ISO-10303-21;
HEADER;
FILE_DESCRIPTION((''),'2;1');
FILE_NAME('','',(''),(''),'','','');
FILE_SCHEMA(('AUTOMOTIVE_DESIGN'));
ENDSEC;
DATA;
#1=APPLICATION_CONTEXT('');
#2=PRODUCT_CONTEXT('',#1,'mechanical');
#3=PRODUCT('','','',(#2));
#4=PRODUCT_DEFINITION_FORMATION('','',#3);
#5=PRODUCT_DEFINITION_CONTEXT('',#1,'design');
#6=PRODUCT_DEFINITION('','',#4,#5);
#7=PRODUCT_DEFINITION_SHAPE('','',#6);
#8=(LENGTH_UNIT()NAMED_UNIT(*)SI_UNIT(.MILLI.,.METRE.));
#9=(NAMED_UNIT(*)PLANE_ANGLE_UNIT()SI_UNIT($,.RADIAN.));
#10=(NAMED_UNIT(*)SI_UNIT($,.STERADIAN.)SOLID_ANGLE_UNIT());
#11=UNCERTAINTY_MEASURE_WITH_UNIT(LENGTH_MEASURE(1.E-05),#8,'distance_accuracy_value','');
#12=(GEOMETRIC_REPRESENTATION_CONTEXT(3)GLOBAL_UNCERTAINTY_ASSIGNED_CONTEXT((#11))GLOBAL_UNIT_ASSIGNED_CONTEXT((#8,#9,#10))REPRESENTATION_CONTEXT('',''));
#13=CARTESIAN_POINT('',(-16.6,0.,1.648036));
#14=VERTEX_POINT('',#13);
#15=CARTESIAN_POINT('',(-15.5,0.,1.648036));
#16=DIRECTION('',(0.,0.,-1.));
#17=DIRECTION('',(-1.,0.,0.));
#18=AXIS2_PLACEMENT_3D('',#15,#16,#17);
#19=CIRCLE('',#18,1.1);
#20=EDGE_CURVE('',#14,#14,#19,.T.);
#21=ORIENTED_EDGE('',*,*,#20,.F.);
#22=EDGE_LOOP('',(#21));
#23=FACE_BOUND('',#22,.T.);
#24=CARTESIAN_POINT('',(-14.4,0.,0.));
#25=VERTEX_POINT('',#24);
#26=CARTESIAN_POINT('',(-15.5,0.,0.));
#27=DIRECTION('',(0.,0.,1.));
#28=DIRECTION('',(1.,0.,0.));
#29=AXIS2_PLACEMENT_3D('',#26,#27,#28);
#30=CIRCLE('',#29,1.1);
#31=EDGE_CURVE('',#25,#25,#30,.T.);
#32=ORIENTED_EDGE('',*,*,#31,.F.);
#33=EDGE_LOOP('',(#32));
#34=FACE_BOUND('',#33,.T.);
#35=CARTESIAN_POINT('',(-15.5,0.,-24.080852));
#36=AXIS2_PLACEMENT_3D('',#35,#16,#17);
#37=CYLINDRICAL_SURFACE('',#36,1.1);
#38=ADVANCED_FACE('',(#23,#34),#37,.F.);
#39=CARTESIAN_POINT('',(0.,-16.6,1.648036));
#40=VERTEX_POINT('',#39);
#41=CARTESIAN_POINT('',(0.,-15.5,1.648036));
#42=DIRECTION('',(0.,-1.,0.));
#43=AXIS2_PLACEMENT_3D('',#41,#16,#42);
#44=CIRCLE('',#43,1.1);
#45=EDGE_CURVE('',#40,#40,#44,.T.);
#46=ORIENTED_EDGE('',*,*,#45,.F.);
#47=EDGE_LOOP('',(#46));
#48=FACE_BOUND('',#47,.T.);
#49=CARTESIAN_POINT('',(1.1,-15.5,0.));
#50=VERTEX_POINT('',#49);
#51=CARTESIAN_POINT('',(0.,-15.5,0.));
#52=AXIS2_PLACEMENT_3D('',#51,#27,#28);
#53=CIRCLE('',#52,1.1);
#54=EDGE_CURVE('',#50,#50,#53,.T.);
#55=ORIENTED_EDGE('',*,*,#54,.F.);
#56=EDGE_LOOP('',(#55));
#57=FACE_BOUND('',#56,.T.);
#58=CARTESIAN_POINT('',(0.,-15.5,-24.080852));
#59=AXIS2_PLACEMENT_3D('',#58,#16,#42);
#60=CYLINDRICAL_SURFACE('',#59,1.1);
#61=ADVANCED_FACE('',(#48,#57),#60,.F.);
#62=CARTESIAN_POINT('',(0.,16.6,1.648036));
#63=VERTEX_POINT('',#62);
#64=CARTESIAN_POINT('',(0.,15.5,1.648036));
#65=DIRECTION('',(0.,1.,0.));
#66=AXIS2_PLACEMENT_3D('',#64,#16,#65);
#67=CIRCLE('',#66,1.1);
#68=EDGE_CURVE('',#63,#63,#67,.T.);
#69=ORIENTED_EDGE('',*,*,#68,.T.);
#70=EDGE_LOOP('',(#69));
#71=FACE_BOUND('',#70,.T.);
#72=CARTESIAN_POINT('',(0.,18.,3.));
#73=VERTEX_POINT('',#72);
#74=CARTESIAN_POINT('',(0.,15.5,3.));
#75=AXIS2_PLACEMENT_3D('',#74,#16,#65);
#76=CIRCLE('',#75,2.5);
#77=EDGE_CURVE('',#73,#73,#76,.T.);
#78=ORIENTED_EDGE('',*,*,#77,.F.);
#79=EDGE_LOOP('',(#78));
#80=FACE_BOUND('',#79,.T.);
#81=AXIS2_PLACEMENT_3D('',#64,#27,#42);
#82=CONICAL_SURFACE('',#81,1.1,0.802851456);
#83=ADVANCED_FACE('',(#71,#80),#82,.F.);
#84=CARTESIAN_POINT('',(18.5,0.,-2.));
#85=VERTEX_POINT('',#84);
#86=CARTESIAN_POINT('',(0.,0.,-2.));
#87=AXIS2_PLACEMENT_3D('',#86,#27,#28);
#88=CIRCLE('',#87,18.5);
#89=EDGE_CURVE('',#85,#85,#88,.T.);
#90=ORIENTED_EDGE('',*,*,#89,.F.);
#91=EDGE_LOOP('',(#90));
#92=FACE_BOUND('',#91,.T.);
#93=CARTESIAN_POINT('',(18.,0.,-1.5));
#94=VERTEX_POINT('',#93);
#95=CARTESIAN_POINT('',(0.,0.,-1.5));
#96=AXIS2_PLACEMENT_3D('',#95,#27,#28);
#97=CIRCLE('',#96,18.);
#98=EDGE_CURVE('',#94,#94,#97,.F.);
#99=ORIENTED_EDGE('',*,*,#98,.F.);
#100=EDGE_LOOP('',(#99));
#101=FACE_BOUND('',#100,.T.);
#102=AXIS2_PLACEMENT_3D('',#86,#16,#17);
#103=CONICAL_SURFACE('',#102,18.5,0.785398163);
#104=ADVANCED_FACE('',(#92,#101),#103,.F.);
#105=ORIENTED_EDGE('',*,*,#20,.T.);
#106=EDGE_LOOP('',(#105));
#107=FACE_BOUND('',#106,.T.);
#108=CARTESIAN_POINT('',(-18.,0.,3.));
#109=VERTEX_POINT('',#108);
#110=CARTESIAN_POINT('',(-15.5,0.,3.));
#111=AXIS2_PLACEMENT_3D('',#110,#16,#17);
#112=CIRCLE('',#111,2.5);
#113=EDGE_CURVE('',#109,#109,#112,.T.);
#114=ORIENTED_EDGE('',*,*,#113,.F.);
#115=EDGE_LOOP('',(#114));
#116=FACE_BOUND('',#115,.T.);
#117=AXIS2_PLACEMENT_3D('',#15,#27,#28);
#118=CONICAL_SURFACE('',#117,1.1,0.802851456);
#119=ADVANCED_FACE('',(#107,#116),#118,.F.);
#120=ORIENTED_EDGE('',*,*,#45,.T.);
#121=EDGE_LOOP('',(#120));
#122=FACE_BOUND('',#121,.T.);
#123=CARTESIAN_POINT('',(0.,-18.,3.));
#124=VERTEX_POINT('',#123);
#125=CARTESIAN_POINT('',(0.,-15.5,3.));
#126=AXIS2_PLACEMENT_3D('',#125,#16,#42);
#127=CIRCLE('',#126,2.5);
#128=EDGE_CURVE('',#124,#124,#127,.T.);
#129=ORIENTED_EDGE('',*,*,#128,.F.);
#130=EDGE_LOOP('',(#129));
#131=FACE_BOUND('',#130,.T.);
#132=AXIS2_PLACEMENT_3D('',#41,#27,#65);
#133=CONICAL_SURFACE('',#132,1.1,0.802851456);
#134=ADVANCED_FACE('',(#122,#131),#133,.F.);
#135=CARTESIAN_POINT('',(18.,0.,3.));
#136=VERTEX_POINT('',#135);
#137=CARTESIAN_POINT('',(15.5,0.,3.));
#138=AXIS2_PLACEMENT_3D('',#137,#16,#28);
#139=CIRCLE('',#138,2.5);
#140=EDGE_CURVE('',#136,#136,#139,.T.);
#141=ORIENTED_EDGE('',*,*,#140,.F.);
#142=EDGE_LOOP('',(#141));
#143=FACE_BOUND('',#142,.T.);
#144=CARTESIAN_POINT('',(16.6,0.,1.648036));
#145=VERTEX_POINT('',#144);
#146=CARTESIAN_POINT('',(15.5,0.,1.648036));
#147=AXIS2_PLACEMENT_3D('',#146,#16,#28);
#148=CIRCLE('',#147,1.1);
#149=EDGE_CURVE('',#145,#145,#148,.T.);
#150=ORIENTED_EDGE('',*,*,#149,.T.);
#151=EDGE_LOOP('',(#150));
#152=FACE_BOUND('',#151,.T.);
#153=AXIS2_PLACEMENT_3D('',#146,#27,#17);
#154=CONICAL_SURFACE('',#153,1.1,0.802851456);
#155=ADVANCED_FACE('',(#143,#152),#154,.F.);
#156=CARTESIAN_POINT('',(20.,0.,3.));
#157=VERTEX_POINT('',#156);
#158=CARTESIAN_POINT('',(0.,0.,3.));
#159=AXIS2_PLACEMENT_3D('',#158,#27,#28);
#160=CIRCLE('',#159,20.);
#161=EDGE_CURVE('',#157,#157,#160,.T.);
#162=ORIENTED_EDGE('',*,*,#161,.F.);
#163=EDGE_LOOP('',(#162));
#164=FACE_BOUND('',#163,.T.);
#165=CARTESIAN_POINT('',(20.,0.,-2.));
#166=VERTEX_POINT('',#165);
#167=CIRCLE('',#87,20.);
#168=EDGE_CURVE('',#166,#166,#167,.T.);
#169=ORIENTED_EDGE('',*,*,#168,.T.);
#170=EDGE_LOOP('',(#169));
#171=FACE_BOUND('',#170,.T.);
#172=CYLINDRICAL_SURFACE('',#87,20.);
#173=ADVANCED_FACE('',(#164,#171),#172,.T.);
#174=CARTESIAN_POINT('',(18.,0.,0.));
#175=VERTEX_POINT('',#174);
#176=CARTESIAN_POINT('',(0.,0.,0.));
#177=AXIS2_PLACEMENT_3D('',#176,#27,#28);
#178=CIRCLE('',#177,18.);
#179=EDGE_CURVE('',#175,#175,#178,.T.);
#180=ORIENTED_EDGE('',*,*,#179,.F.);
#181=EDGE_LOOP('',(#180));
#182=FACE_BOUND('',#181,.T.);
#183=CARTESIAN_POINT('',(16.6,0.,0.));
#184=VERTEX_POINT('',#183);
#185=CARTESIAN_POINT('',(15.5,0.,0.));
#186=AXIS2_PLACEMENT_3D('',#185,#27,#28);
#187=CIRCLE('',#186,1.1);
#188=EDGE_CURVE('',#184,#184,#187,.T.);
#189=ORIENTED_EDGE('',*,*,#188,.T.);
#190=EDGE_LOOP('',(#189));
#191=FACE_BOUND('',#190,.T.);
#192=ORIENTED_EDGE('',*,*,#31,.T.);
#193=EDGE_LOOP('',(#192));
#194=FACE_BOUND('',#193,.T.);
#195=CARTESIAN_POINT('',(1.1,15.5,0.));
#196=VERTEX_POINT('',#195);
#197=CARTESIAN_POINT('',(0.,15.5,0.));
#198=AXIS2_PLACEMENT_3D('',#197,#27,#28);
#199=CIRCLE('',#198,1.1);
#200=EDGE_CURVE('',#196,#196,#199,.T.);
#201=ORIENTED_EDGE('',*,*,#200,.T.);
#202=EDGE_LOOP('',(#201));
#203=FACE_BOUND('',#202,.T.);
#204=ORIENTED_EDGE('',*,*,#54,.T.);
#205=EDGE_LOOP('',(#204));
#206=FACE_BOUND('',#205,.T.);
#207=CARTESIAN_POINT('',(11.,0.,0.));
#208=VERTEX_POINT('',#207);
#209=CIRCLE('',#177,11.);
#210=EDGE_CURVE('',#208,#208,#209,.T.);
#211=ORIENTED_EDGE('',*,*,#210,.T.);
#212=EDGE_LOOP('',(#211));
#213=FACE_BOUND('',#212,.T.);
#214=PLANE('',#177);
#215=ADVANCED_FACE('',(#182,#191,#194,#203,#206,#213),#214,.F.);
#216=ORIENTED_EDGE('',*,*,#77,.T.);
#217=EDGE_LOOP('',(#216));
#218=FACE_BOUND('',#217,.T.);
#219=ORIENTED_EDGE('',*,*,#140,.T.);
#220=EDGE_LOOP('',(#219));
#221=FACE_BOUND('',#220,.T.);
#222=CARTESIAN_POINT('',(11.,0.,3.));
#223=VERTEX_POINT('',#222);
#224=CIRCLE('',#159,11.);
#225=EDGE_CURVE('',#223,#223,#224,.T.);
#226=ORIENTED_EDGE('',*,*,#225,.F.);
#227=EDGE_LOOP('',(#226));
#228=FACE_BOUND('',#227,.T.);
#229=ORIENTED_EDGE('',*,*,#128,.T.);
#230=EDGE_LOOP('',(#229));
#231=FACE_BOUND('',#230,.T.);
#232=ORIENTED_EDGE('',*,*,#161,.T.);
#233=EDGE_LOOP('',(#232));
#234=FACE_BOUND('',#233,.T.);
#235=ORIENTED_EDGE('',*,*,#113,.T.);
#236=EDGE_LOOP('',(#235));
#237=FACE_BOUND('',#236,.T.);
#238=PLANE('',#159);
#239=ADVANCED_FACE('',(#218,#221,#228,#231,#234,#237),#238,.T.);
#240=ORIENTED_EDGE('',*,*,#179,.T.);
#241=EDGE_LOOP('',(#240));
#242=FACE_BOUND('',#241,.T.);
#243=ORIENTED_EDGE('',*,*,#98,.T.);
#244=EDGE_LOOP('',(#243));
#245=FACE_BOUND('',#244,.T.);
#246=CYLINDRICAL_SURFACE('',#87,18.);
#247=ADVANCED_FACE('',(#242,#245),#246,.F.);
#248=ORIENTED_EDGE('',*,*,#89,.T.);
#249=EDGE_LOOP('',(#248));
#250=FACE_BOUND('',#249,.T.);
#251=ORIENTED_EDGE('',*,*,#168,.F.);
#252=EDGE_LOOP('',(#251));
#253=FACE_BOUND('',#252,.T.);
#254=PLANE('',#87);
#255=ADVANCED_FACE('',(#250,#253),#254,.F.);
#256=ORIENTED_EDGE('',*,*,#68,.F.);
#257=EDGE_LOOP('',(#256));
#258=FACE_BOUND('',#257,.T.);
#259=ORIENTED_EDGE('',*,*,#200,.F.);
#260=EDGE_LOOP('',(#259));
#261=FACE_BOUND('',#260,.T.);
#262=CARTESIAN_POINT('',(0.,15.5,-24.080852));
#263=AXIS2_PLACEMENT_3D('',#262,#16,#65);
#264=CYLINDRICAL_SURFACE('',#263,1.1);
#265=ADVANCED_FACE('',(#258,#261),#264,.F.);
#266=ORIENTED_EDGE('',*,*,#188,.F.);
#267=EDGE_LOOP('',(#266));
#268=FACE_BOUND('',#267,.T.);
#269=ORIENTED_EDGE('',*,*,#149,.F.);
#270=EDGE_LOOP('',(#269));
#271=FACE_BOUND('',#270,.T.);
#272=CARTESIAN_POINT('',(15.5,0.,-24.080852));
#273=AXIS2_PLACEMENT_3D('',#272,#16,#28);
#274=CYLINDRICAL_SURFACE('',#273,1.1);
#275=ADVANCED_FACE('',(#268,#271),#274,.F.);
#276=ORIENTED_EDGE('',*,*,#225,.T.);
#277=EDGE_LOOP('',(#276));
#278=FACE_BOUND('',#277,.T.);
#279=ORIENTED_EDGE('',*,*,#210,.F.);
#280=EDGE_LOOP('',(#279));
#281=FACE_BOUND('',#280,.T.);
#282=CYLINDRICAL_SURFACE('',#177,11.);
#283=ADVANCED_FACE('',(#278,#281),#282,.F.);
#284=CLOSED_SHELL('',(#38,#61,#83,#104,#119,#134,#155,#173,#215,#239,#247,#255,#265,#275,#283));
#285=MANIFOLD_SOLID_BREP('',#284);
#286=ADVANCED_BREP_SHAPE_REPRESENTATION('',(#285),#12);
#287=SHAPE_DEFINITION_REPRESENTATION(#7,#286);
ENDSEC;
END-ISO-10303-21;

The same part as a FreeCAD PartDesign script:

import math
import FreeCAD as App
import Part
import Sketcher
Q = App.Units.Quantity


def edges_at(feature, points):
    """Names of the edges that pass closest to the given points."""
    edges = feature.Shape.Edges
    near = lambda p: min(range(len(edges)), key=lambda i: edges[i].distToShape(Part.Vertex(*p))[0])
    return sorted({f"Edge{near(p) + 1}" for p in points})


def add_polygon(sketch, points):
    """Adds a closed chain of lines whose ends are joined by coincident constraints."""
    first, n = sketch.GeometryCount, len(points)
    for a, b in zip(points, points[1:] + points[:1]):
        sketch.addGeometry(Part.LineSegment(App.Vector(*a, 0), App.Vector(*b, 0)), False)
    for i in range(n):
        sketch.addConstraint(Sketcher.Constraint("Coincident", first + i, 2, first + (i + 1) % n, 1))

doc = App.newDocument("Part")
body = doc.addObject("PartDesign::Body", "Body")

# Sketch on XY plane
sketch1 = doc.addObject("Sketcher::SketchObject", "Sketch")
body.addObject(sketch1)
sketch1.AttachmentSupport = (doc.XY_Plane, [""])
sketch1.MapMode = "FlatFace"
sketch1.addGeometry(Part.ArcOfCircle(Part.Circle(App.Vector(0, 0, 0), App.Vector(0, 0, 1), 18), math.radians(-169.273519), math.radians(-100.726481)), False)
sketch1.addGeometry(Part.ArcOfCircle(Part.Circle(App.Vector(0, 0, 0), App.Vector(0, 0, 1), 18), math.radians(-100.72648), math.radians(-10.72648)), False)
sketch1.addGeometry(Part.ArcOfCircle(Part.Circle(App.Vector(0, 0, 0), App.Vector(0, 0, 1), 18), math.radians(-10.72648), math.radians(100.72648)), False)
sketch1.addGeometry(Part.ArcOfCircle(Part.Circle(App.Vector(0, 0, 0), App.Vector(0, 0, 1), 18), math.radians(100.72648), math.radians(190.72648)), False)
sketch1.addConstraint(Sketcher.Constraint("Tangent", 0, 2, 1, 1))
sketch1.addConstraint(Sketcher.Constraint("Tangent", 1, 2, 2, 1))
sketch1.addConstraint(Sketcher.Constraint("Tangent", 2, 2, 3, 1))
sketch1.addConstraint(Sketcher.Constraint("Tangent", 3, 2, 0, 1))
sketch1.addConstraint(Sketcher.Constraint("Coincident", 0, 3, -1, 1))
sketch1.addConstraint(Sketcher.Constraint("Equal", 0, 1))
sketch1.addConstraint(Sketcher.Constraint("Horizontal", 1, 2, 3, 2))
sketch1.addConstraint(Sketcher.Constraint("Vertical", 0, 2, 2, 2))
sketch1.addConstraint(Sketcher.Constraint("Radius", 0, Q("18 mm")))
sketch1.addConstraint(Sketcher.Constraint("DistanceY", 0, 2, 1, 2, Q("14.335311 mm")))
sketch1.addConstraint(Sketcher.Constraint("DistanceX", 3, 2, 0, 2, Q("14.335311 mm")))
pad1 = doc.addObject("PartDesign::Pad", "Pad")
body.addObject(pad1)
pad1.Profile = sketch1
pad1.Length = 3

# Sketch on XY plane
sketch2 = doc.addObject("Sketcher::SketchObject", "Sketch001")
body.addObject(sketch2)
sketch2.AttachmentSupport = (doc.XY_Plane, [""])
sketch2.MapMode = "FlatFace"
sketch2.AttachmentOffset = App.Placement(App.Vector(0, 0, 3), App.Rotation())
sketch2.addGeometry(Part.Circle(App.Vector(0, 0, 0), App.Vector(0, 0, 1), 11), False)
sketch2.addConstraint(Sketcher.Constraint("Coincident", 0, 3, -1, 1))
sketch2.addConstraint(Sketcher.Constraint("Diameter", 0, Q("22 mm")))
pocket1 = doc.addObject("PartDesign::Pocket", "Pocket")
body.addObject(pocket1)
pocket1.Profile = sketch2
pocket1.Type = "ThroughAll"

# Sketch on XY plane
sketch3 = doc.addObject("Sketcher::SketchObject", "Sketch002")
body.addObject(sketch3)
sketch3.AttachmentSupport = (doc.XY_Plane, [""])
sketch3.MapMode = "FlatFace"
sketch3.AttachmentOffset = App.Placement(App.Vector(0, 0, 3), App.Rotation())
sketch3.addGeometry(Part.Circle(App.Vector(0, 0, 0), App.Vector(0, 0, 1), 20), False)
sketch3.addGeometry(Part.Circle(App.Vector(0, 0, 0), App.Vector(0, 0, 1), 18), False)
sketch3.addConstraint(Sketcher.Constraint("Coincident", 0, 3, -1, 1))
sketch3.addConstraint(Sketcher.Constraint("Coincident", 1, 3, -1, 1))
sketch3.addConstraint(Sketcher.Constraint("Diameter", 0, Q("40 mm")))
sketch3.addConstraint(Sketcher.Constraint("Diameter", 1, Q("36 mm")))
pad2 = doc.addObject("PartDesign::Pad", "Pad001")
body.addObject(pad2)
pad2.Profile = sketch3
pad2.Length = 5
pad2.Reversed = True

# Sketch on XZ plane
sketch4 = doc.addObject("Sketcher::SketchObject", "Sketch003")
body.addObject(sketch4)
sketch4.AttachmentSupport = (doc.XZ_Plane, [""])
sketch4.MapMode = "FlatFace"
add_polygon(sketch4, [(-16.6, 1.648036), (-18, 3), (-15.5, 3), (-15.5, -2), (-16.6, -2)])  # lines 0-4
sketch4.addGeometry(Part.LineSegment(App.Vector(-15.5, -2, 0), App.Vector(-15.5, 3, 0)), True)  # axis
sketch4.addConstraint(Sketcher.Constraint("Horizontal", 1))
sketch4.addConstraint(Sketcher.Constraint("Vertical", 2))
sketch4.addConstraint(Sketcher.Constraint("Horizontal", 3))
sketch4.addConstraint(Sketcher.Constraint("Vertical", 4))
sketch4.addConstraint(Sketcher.Constraint("Vertical", 5))
sketch4.addConstraint(Sketcher.Constraint("Coincident", 5, 1, 2, 2))
sketch4.addConstraint(Sketcher.Constraint("Horizontal", 0, 2, 5, 2))
sketch4.addConstraint(Sketcher.Constraint("DistanceY", 2, 2, 2, 1, Q("5 mm")))
sketch4.addConstraint(Sketcher.Constraint("Angle", 0, Q("136 deg")))
sketch4.addConstraint(Sketcher.Constraint("DistanceX", 1, 1, 1, 2, Q("2.5 mm")))
sketch4.addConstraint(Sketcher.Constraint("DistanceX", 3, 2, 3, 1, Q("1.1 mm")))
sketch4.addConstraint(Sketcher.Constraint("DistanceX", 0, 2, -1, 1, Q("18 mm")))
sketch4.addConstraint(Sketcher.Constraint("DistanceY", -1, 1, 0, 2, Q("3 mm")))
groove = doc.addObject("PartDesign::Groove", "Groove")
body.addObject(groove)
groove.Profile = sketch4
groove.ReferenceAxis = (sketch4, ["Axis0"])
groove.Angle = 360
doc.recompute()

polarpattern = doc.addObject("PartDesign::PolarPattern", "PolarPattern")
body.addObject(polarpattern)
polarpattern.Originals = [groove]
polarpattern.Axis = (doc.Z_Axis, [""])
polarpattern.Angle = 360
polarpattern.Occurrences = 4
body.Tip = polarpattern
doc.recompute()

chamfer = doc.addObject("PartDesign::Chamfer", "Chamfer")
body.addObject(chamfer)
chamfer.Base = (polarpattern, edges_at(polarpattern, [(-18, 0, -2)]))
chamfer.Size = 0.5

doc.recompute()
